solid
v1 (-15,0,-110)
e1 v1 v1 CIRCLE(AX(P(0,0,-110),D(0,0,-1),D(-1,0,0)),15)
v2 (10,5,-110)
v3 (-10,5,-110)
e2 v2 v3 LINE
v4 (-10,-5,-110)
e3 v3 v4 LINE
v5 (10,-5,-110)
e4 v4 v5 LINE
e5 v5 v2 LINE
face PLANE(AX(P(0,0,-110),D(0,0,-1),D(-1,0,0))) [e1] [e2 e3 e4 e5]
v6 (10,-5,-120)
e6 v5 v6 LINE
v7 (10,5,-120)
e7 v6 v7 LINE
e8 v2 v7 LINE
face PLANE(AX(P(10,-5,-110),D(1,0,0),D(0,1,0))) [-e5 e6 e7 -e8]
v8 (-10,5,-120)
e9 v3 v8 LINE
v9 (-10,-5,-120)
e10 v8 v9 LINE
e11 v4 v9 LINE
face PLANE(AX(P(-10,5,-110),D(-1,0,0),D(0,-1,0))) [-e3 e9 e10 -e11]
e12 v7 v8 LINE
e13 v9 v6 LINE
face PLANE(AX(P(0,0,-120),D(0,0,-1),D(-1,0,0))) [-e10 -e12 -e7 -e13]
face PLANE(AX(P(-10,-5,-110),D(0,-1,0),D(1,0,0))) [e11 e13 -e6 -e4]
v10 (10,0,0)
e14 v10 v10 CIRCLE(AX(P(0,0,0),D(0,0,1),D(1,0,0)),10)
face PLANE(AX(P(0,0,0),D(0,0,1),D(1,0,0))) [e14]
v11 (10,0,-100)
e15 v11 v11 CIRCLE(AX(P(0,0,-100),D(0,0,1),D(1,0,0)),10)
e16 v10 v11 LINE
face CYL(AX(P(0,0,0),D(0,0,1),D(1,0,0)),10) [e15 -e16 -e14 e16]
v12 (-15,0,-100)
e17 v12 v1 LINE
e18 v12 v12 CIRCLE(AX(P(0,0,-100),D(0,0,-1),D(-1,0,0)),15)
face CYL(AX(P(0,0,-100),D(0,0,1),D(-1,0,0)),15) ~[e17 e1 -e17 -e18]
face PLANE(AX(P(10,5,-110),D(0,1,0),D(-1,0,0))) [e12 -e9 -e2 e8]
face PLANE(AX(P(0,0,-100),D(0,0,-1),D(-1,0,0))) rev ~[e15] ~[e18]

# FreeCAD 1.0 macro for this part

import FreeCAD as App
import Part
import Sketcher
from FreeCAD import Vector
Q = App.Units.Quantity

doc = App.newDocument("Part")
body = doc.addObject("PartDesign::Body", "Body")

# Sketch on XY plane
sketch1 = body.newObject("Sketcher::SketchObject", "Sketch")
sketch1.AttachmentSupport = (doc.getObject("XY_Plane"), [""])
sketch1.MapMode = "FlatFace"
sketch1.addGeometry(Part.Circle(Vector(0, 0, 0), Vector(0, 0, 1), 10), False)
sketch1.addConstraint([
    Sketcher.Constraint("Coincident", 0, 3, -1, 1),
    Sketcher.Constraint("Diameter", 0, Q("0.7874 in")),
])
pad1 = body.newObject("PartDesign::Pad", "Pad")
pad1.Profile = sketch1
pad1.Length = Q("3.9370079 in")
pad1.Reversed = True

# Sketch on XY plane
sketch2 = body.newObject("Sketcher::SketchObject", "Sketch001")
sketch2.AttachmentSupport = (doc.getObject("XY_Plane"), [""])
sketch2.MapMode = "FlatFace"
sketch2.AttachmentOffset = App.Placement(Vector(0, 0, -3.9370079 * 25.4), App.Rotation())
sketch2.addGeometry(Part.Circle(Vector(0, 0, 0), Vector(0, 0, 1), 15), False)
sketch2.addConstraint([
    Sketcher.Constraint("Coincident", 0, 3, -1, 1),
    Sketcher.Constraint("Diameter", 0, Q("1.1811 in")),
])
pad2 = body.newObject("PartDesign::Pad", "Pad001")
pad2.Profile = sketch2
pad2.Length = Q("0.3937008 in")
pad2.Reversed = True

# Sketch on XY plane
sketch3 = body.newObject("Sketcher::SketchObject", "Sketch002")
sketch3.AttachmentSupport = (doc.getObject("XY_Plane"), [""])
sketch3.MapMode = "FlatFace"
sketch3.AttachmentOffset = App.Placement(Vector(0, 0, -4.3307087 * 25.4), App.Rotation())
sketch3.addGeometry([
    Part.LineSegment(Vector(10, -5, 0), Vector(-10, -5, 0)),
    Part.LineSegment(Vector(-10, -5, 0), Vector(-10, 5, 0)),
    Part.LineSegment(Vector(-10, 5, 0), Vector(10, 5, 0)),
    Part.LineSegment(Vector(10, 5, 0), Vector(10, -5, 0)),
], False)
sketch3.addConstraint([
    Sketcher.Constraint("Coincident", 0, 2, 1, 1),
    Sketcher.Constraint("Coincident", 1, 2, 2, 1),
    Sketcher.Constraint("Coincident", 2, 2, 3, 1),
    Sketcher.Constraint("Coincident", 3, 2, 0, 1),
    Sketcher.Constraint("Horizontal", 0),
    Sketcher.Constraint("Vertical", 1),
    Sketcher.Constraint("Horizontal", 2),
    Sketcher.Constraint("Vertical", 3),
    Sketcher.Constraint("Symmetric", 0, 2, 2, 2, -1, 1),
    Sketcher.Constraint("DistanceX", 0, 2, 0, 1, Q("0.7874 in")),
    Sketcher.Constraint("DistanceY", 1, 1, 1, 2, Q("0.3937 in")),
])
pad3 = body.newObject("PartDesign::Pad", "Pad002")
pad3.Profile = sketch3
pad3.Length = Q("0.3937008 in")
pad3.Reversed = True

doc.recompute()
